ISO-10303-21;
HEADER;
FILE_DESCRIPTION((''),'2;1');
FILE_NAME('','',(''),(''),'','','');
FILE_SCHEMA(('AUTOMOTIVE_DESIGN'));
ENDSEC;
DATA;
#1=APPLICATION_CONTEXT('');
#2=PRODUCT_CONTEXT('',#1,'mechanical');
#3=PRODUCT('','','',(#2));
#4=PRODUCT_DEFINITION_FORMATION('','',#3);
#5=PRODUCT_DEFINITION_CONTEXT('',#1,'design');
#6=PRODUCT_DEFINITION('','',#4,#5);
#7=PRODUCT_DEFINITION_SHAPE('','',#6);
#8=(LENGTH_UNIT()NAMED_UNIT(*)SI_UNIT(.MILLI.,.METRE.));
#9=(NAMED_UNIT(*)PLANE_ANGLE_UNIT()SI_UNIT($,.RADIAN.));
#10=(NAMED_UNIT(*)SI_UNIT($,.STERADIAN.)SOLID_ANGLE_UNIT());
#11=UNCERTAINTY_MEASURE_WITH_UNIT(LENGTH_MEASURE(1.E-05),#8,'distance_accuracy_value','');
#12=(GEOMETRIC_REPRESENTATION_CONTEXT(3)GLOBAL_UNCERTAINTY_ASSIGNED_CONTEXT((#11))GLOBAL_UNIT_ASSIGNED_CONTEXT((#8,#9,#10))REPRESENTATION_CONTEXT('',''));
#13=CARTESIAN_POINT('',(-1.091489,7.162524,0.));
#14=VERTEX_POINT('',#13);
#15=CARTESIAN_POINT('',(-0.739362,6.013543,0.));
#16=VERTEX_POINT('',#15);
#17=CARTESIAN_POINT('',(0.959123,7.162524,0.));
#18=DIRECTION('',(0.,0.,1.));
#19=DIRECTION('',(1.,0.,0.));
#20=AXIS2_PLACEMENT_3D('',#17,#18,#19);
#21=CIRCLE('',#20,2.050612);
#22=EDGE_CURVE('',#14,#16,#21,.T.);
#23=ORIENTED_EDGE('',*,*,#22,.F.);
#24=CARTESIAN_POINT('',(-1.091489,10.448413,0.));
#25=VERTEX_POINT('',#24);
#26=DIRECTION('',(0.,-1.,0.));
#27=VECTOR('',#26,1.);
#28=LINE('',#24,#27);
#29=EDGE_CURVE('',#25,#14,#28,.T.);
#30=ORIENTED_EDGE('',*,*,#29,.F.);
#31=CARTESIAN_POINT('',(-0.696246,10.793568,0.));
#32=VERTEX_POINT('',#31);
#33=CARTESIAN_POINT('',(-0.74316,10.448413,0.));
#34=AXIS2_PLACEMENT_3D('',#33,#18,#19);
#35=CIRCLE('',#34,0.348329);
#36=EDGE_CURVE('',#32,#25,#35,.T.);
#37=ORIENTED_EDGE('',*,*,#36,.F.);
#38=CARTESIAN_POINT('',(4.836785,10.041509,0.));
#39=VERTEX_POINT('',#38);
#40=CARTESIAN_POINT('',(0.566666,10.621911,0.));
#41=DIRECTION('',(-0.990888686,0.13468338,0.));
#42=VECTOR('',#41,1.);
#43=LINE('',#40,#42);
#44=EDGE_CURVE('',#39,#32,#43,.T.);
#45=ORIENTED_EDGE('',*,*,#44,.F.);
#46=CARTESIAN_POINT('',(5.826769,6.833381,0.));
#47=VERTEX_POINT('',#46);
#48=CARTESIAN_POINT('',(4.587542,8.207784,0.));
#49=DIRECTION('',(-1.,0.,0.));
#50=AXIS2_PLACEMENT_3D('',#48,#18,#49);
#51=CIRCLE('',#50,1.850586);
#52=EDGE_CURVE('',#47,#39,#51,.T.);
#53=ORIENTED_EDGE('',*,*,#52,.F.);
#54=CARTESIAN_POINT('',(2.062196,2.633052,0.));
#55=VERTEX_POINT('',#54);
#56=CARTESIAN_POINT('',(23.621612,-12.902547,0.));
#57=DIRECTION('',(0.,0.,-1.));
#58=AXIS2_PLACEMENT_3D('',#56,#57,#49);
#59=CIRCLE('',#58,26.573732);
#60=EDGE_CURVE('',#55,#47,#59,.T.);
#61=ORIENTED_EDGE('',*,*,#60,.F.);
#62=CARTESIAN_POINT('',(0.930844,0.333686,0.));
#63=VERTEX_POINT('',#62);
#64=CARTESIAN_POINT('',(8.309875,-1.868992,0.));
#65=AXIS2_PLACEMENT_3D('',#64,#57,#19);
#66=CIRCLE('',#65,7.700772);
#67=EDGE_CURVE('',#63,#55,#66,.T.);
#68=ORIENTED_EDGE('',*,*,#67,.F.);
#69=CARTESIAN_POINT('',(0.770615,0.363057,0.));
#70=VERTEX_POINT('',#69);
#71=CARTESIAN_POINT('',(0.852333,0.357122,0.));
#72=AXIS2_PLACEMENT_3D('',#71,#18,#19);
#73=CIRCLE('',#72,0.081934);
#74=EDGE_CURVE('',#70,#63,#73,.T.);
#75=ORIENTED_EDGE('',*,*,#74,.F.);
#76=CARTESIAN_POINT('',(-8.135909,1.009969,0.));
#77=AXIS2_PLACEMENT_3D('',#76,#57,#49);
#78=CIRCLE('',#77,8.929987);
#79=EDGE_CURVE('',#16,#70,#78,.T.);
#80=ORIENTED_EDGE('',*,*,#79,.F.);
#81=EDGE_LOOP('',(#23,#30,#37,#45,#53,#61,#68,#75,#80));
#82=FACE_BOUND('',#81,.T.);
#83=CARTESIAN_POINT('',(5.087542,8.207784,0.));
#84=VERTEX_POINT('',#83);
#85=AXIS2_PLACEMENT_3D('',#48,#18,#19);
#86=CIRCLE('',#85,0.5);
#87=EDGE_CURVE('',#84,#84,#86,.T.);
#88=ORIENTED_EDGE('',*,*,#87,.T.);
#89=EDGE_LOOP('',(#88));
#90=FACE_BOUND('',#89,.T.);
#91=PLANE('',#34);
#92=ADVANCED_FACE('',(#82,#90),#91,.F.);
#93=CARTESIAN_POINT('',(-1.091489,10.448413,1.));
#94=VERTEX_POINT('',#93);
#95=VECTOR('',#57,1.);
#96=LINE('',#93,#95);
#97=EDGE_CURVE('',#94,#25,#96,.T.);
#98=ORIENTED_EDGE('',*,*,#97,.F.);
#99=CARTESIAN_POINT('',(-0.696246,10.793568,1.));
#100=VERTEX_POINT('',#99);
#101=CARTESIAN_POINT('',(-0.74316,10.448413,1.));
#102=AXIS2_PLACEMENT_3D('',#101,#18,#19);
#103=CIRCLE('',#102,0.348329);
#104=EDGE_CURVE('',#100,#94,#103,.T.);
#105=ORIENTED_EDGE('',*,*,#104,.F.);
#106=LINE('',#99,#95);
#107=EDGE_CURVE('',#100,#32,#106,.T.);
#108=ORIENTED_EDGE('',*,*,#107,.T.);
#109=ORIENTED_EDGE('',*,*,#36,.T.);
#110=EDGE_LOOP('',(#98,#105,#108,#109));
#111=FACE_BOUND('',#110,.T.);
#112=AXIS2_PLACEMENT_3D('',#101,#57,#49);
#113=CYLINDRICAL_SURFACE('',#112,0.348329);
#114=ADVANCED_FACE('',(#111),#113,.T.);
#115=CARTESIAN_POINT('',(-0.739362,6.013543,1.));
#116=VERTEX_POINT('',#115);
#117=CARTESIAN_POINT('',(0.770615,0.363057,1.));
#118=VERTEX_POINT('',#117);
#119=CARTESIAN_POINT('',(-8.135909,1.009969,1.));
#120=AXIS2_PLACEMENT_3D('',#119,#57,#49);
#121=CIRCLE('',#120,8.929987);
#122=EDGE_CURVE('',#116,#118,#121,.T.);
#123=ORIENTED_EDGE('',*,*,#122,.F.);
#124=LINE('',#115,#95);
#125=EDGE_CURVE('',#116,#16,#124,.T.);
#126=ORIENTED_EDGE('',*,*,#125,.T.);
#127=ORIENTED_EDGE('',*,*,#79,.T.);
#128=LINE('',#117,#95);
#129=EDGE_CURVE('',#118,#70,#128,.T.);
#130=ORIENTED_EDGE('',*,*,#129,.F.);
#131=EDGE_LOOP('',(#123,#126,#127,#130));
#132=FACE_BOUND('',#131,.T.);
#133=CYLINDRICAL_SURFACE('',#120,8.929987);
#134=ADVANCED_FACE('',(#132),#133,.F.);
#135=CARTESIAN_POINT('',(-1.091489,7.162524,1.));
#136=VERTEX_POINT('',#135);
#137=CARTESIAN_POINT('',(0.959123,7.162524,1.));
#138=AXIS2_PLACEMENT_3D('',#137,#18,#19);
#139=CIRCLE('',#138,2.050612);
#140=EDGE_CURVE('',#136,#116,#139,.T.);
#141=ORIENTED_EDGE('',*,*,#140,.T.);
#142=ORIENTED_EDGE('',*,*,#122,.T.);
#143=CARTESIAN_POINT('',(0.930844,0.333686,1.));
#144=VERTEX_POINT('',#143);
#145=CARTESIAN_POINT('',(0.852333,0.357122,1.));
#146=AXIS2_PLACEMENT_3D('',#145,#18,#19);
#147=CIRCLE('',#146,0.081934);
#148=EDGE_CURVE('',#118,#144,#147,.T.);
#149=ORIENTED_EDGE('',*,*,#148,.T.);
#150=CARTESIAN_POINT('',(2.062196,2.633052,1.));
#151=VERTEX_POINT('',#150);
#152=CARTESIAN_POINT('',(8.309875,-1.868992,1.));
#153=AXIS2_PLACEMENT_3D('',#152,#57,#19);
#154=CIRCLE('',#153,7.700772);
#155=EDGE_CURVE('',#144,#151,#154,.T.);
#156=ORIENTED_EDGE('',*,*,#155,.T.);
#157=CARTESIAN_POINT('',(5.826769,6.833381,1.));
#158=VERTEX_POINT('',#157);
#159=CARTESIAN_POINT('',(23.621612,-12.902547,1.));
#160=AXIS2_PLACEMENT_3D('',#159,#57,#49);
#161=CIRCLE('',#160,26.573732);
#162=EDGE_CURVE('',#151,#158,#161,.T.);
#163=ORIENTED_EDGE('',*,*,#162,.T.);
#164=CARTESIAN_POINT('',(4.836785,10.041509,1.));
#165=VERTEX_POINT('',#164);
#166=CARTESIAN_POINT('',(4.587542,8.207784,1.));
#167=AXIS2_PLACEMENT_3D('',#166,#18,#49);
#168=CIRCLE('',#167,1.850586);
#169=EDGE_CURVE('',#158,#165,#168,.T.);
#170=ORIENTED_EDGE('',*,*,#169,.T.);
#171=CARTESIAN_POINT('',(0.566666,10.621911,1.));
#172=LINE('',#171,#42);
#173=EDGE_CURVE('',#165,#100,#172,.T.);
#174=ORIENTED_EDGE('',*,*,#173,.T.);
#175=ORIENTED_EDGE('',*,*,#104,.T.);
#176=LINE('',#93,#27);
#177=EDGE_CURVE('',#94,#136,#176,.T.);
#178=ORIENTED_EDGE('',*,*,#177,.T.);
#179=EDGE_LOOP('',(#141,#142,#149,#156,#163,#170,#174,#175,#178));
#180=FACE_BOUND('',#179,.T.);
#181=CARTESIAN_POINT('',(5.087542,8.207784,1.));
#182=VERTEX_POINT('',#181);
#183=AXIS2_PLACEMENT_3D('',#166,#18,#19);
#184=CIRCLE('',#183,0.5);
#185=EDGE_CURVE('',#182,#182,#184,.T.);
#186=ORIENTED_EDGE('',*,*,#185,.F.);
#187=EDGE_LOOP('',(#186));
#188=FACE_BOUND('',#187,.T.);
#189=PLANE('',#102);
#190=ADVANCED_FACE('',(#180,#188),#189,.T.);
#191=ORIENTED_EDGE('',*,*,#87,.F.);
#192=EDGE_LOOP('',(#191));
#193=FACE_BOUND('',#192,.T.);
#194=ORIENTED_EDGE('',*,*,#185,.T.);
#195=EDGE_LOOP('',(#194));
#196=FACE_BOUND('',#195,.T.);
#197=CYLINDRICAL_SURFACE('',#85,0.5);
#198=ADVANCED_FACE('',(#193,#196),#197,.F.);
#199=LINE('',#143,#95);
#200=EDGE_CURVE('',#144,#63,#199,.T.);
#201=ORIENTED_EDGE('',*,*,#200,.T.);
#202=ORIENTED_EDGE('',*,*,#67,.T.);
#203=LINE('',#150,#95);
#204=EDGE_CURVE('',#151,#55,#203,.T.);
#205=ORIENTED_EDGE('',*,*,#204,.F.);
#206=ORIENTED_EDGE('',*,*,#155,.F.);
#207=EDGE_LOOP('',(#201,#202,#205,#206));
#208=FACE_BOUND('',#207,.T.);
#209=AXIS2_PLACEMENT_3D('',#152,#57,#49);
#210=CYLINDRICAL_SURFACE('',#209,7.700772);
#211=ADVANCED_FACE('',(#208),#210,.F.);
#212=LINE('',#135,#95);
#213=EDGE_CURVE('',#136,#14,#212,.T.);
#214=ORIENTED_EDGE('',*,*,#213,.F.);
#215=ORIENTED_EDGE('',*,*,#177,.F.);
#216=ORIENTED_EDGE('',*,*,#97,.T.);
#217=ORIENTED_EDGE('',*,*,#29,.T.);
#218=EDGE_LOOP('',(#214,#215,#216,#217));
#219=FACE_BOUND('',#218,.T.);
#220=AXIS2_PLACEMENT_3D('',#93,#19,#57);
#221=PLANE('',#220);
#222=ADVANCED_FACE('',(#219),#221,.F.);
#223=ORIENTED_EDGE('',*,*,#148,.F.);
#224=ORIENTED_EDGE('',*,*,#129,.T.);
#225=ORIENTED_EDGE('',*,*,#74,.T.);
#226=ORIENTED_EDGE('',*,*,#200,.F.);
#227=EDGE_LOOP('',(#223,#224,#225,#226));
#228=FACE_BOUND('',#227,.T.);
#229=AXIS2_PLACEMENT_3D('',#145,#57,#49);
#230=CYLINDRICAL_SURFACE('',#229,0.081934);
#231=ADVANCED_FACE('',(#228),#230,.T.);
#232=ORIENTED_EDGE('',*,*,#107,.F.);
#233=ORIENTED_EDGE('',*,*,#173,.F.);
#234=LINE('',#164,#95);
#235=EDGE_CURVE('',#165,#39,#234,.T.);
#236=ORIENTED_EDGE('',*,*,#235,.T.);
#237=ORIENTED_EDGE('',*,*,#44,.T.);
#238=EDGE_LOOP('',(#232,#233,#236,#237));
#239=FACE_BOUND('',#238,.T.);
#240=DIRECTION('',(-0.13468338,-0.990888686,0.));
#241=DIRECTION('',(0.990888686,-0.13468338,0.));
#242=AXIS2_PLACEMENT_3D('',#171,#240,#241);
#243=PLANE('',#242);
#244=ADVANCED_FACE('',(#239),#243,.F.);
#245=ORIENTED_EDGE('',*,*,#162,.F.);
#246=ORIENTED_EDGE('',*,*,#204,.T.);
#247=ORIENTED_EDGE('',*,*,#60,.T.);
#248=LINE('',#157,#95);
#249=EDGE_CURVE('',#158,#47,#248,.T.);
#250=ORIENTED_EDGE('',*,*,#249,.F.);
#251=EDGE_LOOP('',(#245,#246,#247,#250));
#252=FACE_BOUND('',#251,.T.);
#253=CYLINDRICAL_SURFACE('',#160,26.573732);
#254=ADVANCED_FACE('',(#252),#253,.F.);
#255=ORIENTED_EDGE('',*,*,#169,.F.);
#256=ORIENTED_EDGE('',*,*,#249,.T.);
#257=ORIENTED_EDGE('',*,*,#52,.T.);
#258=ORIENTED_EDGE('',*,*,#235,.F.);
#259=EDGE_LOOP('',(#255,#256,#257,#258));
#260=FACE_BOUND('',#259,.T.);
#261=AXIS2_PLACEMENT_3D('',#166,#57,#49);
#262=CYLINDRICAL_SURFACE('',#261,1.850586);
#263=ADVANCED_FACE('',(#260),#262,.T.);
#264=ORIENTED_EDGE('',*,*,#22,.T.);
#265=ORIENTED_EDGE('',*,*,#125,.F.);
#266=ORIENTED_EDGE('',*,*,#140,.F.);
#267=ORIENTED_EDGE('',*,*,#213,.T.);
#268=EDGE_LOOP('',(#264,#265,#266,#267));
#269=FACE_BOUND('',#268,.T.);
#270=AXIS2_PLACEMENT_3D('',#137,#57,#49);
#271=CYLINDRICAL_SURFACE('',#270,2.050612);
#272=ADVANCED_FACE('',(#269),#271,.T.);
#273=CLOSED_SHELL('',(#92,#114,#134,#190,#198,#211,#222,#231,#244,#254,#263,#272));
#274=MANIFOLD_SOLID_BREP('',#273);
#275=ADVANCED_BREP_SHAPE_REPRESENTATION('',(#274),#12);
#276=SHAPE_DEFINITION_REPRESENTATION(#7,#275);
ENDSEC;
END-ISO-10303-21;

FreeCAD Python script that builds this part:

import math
import FreeCAD as App
import Part
import Sketcher
from FreeCAD import Vector
Q = App.Units.Quantity

doc = App.newDocument("Part")
params = doc.addObject("Spreadsheet::Sheet", "Params")
for row, (alias, value) in enumerate([
    ("pad1_length", "1 mm"),
    ("sketch2_diameter", "1 mm"),
    ("pocket1_length", "1 mm"),
], start=1):
    params.set(f"A{row}", alias)
    params.set(f"B{row}", "=" + value)
    params.setAlias(f"B{row}", alias)

body = doc.addObject("PartDesign::Body", "Body")

# Sketch on XY plane
sketch1 = body.newObject("Sketcher::SketchObject", "Sketch")
sketch1.AttachmentSupport = (doc.getObject("XY_Plane"), [""])
sketch1.MapMode = "FlatFace"
sketch1.addGeometry([
    Part.LineSegment(Vector(4.836785, 10.041509, 0), Vector(0.566666, 10.621911, 0)),  # 0
    Part.LineSegment(Vector(0.566666, 10.621911, 0), Vector(-0.696246, 10.793568, 0)),  # 1
    Part.ArcOfCircle(Part.Circle(Vector(-0.74316, 10.448413, 0), Vector(0, 0, 1), 0.348329), math.radians(82.259688), math.radians(180)),  # 2
    Part.LineSegment(Vector(-1.091489, 10.448413, 0), Vector(-1.091489, 7.162524, 0)),  # 3
    Part.ArcOfCircle(Part.Circle(Vector(0.959123, 7.162524, 0), Vector(0, 0, 1), 2.050612), math.radians(180), math.radians(214.077343)),  # 4
    Part.ArcOfCircle(Part.Circle(Vector(-8.135909, 1.009969, 0), Vector(0, 0, 1), 8.929987), math.radians(-4.154292), math.radians(34.077343)),  # 5
    Part.ArcOfCircle(Part.Circle(Vector(0.852333, 0.357122, 0), Vector(0, 0, 1), 0.081934), math.radians(175.845708), math.radians(343.379371)),  # 6
    Part.ArcOfCircle(Part.Circle(Vector(8.309875, -1.868992, 0), Vector(0, 0, 1), 7.700772), math.radians(144.223682), math.radians(163.379372)),  # 7
    Part.ArcOfCircle(Part.Circle(Vector(23.621612, -12.902547, 0), Vector(0, 0, 1), 26.573733), math.radians(132.039311), math.radians(144.223682)),  # 8
    Part.ArcOfCircle(Part.Circle(Vector(4.587542, 8.207784, 0), Vector(0, 0, 1), 1.850586), math.radians(-47.960689), math.radians(82.259688)),  # 9
], False)
sketch1.addConstraint([
    Sketcher.Constraint("Coincident", 0, 2, 1, 1),
    Sketcher.Constraint("Coincident", 1, 2, 2, 1),
    Sketcher.Constraint("Coincident", 2, 2, 3, 1),
    Sketcher.Constraint("Coincident", 3, 2, 4, 1),
    Sketcher.Constraint("Coincident", 4, 2, 5, 2),
    Sketcher.Constraint("Coincident", 5, 1, 6, 1),
    Sketcher.Constraint("Coincident", 6, 2, 7, 2),
    Sketcher.Constraint("Coincident", 7, 1, 8, 2),
    Sketcher.Constraint("Coincident", 8, 1, 9, 1),
    Sketcher.Constraint("Coincident", 9, 2, 0, 1),
    Sketcher.Constraint("Vertical", 3),
    Sketcher.Constraint("Radius", 2, Q("0.348329 mm")),
    Sketcher.Constraint("Radius", 7, Q("7.700772 mm")),
    Sketcher.Constraint("Radius", 4, Q("2.050612 mm")),
    Sketcher.Constraint("Radius", 5, Q("8.929987 mm")),
    Sketcher.Constraint("Radius", 6, Q("0.081934 mm")),
    Sketcher.Constraint("Radius", 8, Q("26.573733 mm")),
    Sketcher.Constraint("Radius", 9, Q("1.850586 mm")),
    Sketcher.Constraint("DistanceY", 3, 2, 3, 1, Q("3.285889 mm")),
    Sketcher.Constraint("DistanceX", 2, 3, 4, 2, Q("0.003798 mm")),
    Sketcher.Constraint("DistanceX", 2, 3, -1, 1, Q("0.74316 mm")),
    Sketcher.Constraint("DistanceX", 5, 3, -1, 1, Q("8.135909 mm")),
    Sketcher.Constraint("DistanceY", -1, 1, 5, 3, Q("1.009969 mm")),
    Sketcher.Constraint("DistanceY", -1, 1, 6, 3, Q("0.357122 mm")),
    Sketcher.Constraint("DistanceY", 7, 3, -1, 1, Q("1.868992 mm")),
    Sketcher.Constraint("DistanceY", -1, 1, 0, 2, Q("10.621911 mm")),
    Sketcher.Constraint("DistanceY", -1, 1, 1, 2, Q("10.793568 mm")),
    Sketcher.Constraint("DistanceX", -1, 1, 8, 1, Q("5.826769 mm")),
    Sketcher.Constraint("DistanceY", -1, 1, 8, 1, Q("6.833381 mm")),
    Sketcher.Constraint("DistanceY", -1, 1, 9, 2, Q("10.041509 mm")),
    Sketcher.Constraint("DistanceY", 4, 3, 2, 3, Q("3.285889 mm")),
    Sketcher.Constraint("DistanceX", 4, 3, 9, 3, Q("3.628419 mm")),
    Sketcher.Constraint("DistanceX", 1, 2, 0, 2, Q("1.262912 mm")),
    Sketcher.Constraint("DistanceY", 4, 3, 2, 2, Q("3.285889 mm")),
    Sketcher.Constraint("DistanceX", 5, 1, 6, 3, Q("0.081718 mm")),
    Sketcher.Constraint("DistanceX", 6, 3, 6, 2, Q("0.07851 mm")),
    Sketcher.Constraint("DistanceY", 6, 3, 7, 1, Q("2.27593 mm")),
])
pad1 = body.newObject("PartDesign::Pad", "Pad")
pad1.Profile = sketch1
pad1.setExpression("Length", "Params.pad1_length")

# Sketch on XY plane
sketch2 = body.newObject("Sketcher::SketchObject", "Sketch001")
sketch2.AttachmentSupport = (doc.getObject("XY_Plane"), [""])
sketch2.MapMode = "FlatFace"
sketch2.AttachmentOffset = App.Placement(Vector(0, 0, 1), App.Rotation())
sketch2.addGeometry(Part.Circle(Vector(4.6, 8.2, 0), Vector(0, 0, 1), 0.5), False)
sketch2.addConstraint([
    Sketcher.Constraint("Diameter", 0, Q("1 mm")),
    Sketcher.Constraint("DistanceX", -1, 1, 0, 3, Q("4.587542 mm")),
    Sketcher.Constraint("DistanceY", -1, 1, 0, 3, Q("8.207784 mm")),
])
sketch2.setExpression("Constraints[0]", "Params.sketch2_diameter")
pocket1 = body.newObject("PartDesign::Pocket", "Pocket")
pocket1.Profile = sketch2
pocket1.setExpression("Length", "Params.pocket1_length")

doc.recompute()
